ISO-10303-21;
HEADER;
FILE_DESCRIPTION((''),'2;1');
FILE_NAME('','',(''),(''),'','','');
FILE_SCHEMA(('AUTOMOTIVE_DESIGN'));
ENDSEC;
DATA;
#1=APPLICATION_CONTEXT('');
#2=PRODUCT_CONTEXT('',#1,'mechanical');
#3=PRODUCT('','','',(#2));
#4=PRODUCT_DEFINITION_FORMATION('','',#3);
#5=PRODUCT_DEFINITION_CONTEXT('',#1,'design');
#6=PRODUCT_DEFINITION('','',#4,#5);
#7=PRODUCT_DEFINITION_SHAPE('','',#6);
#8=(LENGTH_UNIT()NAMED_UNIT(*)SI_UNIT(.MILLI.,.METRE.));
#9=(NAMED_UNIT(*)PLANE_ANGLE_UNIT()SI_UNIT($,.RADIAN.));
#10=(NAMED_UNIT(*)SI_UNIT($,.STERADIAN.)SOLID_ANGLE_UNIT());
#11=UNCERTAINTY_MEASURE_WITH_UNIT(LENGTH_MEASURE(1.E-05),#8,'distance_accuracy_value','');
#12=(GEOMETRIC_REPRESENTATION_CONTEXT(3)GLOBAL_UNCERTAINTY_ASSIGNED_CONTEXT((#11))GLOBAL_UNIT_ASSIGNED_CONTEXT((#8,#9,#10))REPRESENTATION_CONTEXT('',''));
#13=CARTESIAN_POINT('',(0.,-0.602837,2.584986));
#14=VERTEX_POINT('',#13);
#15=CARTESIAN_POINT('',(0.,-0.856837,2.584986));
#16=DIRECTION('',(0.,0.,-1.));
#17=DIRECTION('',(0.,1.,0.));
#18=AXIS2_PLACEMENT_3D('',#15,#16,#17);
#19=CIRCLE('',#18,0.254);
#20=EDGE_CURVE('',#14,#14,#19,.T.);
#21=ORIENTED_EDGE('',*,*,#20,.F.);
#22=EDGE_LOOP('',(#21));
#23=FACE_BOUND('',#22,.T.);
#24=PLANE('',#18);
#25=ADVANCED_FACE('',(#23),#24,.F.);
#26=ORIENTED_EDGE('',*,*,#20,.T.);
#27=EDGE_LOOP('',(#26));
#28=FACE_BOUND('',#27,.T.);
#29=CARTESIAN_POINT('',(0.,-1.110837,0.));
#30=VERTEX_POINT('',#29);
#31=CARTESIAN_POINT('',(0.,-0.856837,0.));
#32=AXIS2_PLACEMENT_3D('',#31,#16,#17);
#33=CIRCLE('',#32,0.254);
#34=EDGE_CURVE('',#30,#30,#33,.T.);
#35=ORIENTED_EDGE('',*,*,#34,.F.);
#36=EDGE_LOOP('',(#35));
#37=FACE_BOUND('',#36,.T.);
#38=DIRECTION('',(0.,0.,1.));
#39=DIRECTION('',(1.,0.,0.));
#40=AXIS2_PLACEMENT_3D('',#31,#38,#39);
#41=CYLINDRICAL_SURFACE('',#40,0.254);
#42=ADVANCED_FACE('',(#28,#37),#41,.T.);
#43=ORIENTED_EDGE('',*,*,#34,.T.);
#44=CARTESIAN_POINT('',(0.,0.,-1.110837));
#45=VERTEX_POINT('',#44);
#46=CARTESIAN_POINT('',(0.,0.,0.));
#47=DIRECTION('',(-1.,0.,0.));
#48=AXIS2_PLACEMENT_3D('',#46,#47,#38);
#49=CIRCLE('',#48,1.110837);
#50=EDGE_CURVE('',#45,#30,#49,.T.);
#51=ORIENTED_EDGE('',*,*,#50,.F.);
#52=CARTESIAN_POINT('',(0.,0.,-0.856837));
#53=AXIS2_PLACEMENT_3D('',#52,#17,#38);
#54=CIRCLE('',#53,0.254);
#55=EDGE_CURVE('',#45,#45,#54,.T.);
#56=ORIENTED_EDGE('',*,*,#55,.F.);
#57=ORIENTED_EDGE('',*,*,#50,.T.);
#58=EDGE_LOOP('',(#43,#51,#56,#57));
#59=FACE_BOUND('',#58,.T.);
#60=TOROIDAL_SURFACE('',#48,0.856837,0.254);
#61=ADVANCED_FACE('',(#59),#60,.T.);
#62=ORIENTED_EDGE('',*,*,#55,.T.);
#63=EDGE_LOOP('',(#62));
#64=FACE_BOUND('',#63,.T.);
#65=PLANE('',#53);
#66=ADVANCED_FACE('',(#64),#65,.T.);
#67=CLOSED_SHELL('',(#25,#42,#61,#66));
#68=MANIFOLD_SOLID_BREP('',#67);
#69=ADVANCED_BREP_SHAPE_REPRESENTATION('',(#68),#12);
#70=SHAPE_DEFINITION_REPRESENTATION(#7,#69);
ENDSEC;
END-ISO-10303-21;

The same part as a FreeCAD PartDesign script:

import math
import FreeCAD as App
import Part
import Sketcher
Q = App.Units.Quantity

doc = App.newDocument("Part")
body = doc.addObject("PartDesign::Body", "Body")

sketch1 = doc.addObject("Sketcher::SketchObject", "Sketch")
body.addObject(sketch1)
sketch1.AttachmentSupport = (doc.XZ_Plane, [""])
sketch1.MapMode = "FlatFace"
sketch1.addGeometry(Part.Circle(App.Vector(0, -0.86, 0), App.Vector(0, 0, 1), 0.25), False)
sketch1.addConstraint([
    Sketcher.Constraint("PointOnObject", 0, 3, -2),
    Sketcher.Constraint("Diameter", 0, Q("0.02 in")),
    Sketcher.Constraint("DistanceY", 0, 3, -1, 1, 0.856837),
])

sketch2 = doc.addObject("Sketcher::SketchObject", "Sketch001")
body.addObject(sketch2)
sketch2.AttachmentSupport = (doc.YZ_Plane, [""])
sketch2.MapMode = "FlatFace"
sketch2.addGeometry([
    Part.LineSegment(App.Vector(-0.9, 2.6, 0), App.Vector(-0.9, 0, 0)),
    Part.ArcOfCircle(Part.Circle(App.Vector(0, 0, 0), App.Vector(0, 0, 1), 0.9), math.radians(180), math.radians(270)),
], False)
sketch2.addConstraint([
    Sketcher.Constraint("Tangent", 0, 2, 1, 1),
    Sketcher.Constraint("Vertical", 0),
    Sketcher.Constraint("Coincident", 1, 3, -1, 1),
    Sketcher.Constraint("PointOnObject", 1, 2, -2),
    Sketcher.Constraint("Radius", 1, 0.856837),
    Sketcher.Constraint("DistanceY", 0, 2, 0, 1, 2.584986),
])
doc.recompute()

additivepipe = doc.addObject("PartDesign::AdditivePipe", "AdditivePipe")
body.addObject(additivepipe)
additivepipe.Profile = sketch1
additivepipe.Spine = (sketch2, ["Edge1", "Edge2"])

doc.recompute()
